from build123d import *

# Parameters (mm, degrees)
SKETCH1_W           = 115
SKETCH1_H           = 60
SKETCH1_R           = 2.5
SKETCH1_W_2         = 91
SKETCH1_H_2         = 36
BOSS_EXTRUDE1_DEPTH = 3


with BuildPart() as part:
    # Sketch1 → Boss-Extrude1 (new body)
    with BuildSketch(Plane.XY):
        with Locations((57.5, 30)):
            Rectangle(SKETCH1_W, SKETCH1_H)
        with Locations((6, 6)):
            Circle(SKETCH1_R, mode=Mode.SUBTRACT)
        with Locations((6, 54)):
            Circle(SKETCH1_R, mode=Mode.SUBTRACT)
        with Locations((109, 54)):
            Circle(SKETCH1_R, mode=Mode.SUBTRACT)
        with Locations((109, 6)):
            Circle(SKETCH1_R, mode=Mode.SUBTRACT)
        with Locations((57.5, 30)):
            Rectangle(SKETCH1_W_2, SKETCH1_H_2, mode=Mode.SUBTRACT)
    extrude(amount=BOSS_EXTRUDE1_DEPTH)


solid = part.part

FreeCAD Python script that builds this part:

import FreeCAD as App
import Part
import Sketcher

V = App.Vector
Q = App.Units.Quantity

doc = App.newDocument("Part")
body = doc.addObject("PartDesign::Body", "Body")

sketch1 = body.newObject("Sketcher::SketchObject", "Sketch")
sketch1.AttachmentSupport = (doc.getObject("XY_Plane"), [""])
sketch1.MapMode = "FlatFace"
sketch1.addGeometry([
    Part.LineSegment(V(0, 60, 0), V(0, 0, 0)),
    Part.LineSegment(V(0, 0, 0), V(115, 0, 0)),
    Part.LineSegment(V(115, 0, 0), V(115, 60, 0)),
    Part.LineSegment(V(115, 60, 0), V(0, 60, 0)),
    Part.Circle(V(6, 6, 0), V(0, 0, 1), 2.5),
    Part.Circle(V(109, 6, 0), V(0, 0, 1), 2.5),
    Part.Circle(V(6, 54, 0), V(0, 0, 1), 2.5),
    Part.LineSegment(V(103, 12, 0), V(12, 12, 0)),
    Part.LineSegment(V(12, 12, 0), V(12, 48, 0)),
    Part.LineSegment(V(12, 48, 0), V(103, 48, 0)),
    Part.LineSegment(V(103, 48, 0), V(103, 12, 0)),
    Part.Circle(V(109, 54, 0), V(0, 0, 1), 2.5),
], False)
sketch1.addConstraint([
    Sketcher.Constraint("Coincident", 0, 2, 1, 1),
    Sketcher.Constraint("Coincident", 1, 2, 2, 1),
    Sketcher.Constraint("Coincident", 2, 2, 3, 1),
    Sketcher.Constraint("Coincident", 3, 2, 0, 1),
    Sketcher.Constraint("Coincident", 7, 2, 8, 1),
    Sketcher.Constraint("Coincident", 8, 2, 9, 1),
    Sketcher.Constraint("Coincident", 9, 2, 10, 1),
    Sketcher.Constraint("Coincident", 10, 2, 7, 1),
    Sketcher.Constraint("Vertical", 0),
    Sketcher.Constraint("Horizontal", 1),
    Sketcher.Constraint("Vertical", 2),
    Sketcher.Constraint("Horizontal", 3),
    Sketcher.Constraint("Horizontal", 7),
    Sketcher.Constraint("Vertical", 8),
    Sketcher.Constraint("Horizontal", 9),
    Sketcher.Constraint("Vertical", 10),
    Sketcher.Constraint("Coincident", 0, 2, -1, 1),
    Sketcher.Constraint("Equal", 4, 5),
    Sketcher.Constraint("Equal", 5, 6),
    Sketcher.Constraint("Equal", 6, 11),
    Sketcher.Constraint("Horizontal", 4, 3, 5, 3),
    Sketcher.Constraint("Horizontal", 6, 3, 11, 3),
    Sketcher.Constraint("Vertical", 4, 3, 6, 3),
    Sketcher.Constraint("Vertical", 5, 3, 11, 3),
    Sketcher.Constraint("Diameter", 4, Q("5 mm")),
    Sketcher.Constraint("DistanceX", 1, 1, 1, 2, Q("115 mm")),
    Sketcher.Constraint("DistanceX", 7, 2, 7, 1, Q("91 mm")),
    Sketcher.Constraint("DistanceY", 0, 2, 0, 1, Q("60 mm")),
    Sketcher.Constraint("DistanceY", 8, 1, 8, 2, Q("36 mm")),
    Sketcher.Constraint("DistanceX", -1, 1, 4, 3, Q("6 mm")),
    Sketcher.Constraint("DistanceY", -1, 1, 4, 3, Q("6 mm")),
    Sketcher.Constraint("DistanceX", -1, 1, 5, 3, Q("109 mm")),
    Sketcher.Constraint("DistanceY", -1, 1, 6, 3, Q("54 mm")),
    Sketcher.Constraint("DistanceX", -1, 1, 7, 2, Q("12 mm")),
    Sketcher.Constraint("DistanceY", -1, 1, 7, 2, Q("12 mm")),
])
pad1 = body.newObject("PartDesign::Pad", "Pad")
pad1.Profile = sketch1
pad1.Length = 3

doc.recompute()
